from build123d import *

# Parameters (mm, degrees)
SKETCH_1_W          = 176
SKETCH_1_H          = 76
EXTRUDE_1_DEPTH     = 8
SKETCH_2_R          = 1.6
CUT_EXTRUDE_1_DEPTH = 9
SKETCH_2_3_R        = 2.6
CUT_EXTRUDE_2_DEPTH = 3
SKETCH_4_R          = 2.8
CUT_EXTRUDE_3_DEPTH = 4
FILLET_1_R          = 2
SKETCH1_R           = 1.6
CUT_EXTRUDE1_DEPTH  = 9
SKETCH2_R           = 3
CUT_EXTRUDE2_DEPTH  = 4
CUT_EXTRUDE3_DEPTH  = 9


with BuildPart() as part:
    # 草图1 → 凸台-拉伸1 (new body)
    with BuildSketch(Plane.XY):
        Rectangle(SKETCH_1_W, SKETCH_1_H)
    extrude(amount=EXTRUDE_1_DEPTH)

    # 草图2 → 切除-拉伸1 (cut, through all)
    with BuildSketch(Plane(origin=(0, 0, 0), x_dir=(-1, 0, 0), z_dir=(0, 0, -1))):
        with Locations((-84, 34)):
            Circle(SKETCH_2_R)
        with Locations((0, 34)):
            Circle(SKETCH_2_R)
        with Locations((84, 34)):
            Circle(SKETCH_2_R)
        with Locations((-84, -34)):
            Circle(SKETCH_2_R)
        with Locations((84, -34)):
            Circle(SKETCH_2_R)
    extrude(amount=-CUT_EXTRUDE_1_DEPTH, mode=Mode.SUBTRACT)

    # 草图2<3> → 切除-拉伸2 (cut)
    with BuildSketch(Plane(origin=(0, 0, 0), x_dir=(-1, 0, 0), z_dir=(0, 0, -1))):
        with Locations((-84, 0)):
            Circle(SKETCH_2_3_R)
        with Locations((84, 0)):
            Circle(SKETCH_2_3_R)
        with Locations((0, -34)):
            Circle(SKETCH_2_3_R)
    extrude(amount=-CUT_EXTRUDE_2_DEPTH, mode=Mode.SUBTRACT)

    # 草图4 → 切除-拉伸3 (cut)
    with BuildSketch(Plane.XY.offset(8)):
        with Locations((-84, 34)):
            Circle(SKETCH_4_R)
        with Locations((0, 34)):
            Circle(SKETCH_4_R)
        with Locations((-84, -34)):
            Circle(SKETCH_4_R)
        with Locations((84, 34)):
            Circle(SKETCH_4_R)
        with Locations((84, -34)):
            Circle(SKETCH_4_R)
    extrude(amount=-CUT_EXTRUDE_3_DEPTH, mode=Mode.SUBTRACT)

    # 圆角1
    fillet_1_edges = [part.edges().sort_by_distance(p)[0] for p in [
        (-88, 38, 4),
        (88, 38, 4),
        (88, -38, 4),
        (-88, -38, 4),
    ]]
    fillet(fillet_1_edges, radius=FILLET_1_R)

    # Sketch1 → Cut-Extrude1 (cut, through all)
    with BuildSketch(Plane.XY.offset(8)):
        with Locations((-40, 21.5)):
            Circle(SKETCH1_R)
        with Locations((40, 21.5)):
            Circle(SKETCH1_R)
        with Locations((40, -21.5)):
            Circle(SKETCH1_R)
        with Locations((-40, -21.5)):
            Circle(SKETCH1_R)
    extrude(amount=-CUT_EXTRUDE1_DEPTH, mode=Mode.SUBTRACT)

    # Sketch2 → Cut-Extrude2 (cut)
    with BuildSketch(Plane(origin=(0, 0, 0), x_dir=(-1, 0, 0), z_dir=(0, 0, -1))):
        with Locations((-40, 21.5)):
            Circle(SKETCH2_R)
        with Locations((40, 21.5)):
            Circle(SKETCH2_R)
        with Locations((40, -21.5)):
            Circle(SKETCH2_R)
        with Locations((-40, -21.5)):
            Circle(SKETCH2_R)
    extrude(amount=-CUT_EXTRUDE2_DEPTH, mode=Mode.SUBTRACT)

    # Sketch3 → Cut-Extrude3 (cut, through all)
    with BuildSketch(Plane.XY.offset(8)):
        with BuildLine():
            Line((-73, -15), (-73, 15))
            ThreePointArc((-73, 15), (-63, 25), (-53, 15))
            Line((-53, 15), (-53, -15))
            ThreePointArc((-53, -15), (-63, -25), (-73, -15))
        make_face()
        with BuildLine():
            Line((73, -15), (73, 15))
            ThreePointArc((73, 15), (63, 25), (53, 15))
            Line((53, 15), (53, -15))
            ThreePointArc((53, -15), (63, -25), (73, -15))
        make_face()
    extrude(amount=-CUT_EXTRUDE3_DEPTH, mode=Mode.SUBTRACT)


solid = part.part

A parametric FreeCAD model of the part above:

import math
import FreeCAD as App
import Part
import Sketcher
from FreeCAD import Vector


def edges_at(feature, points):
    """Names of the edges that pass closest to the given points."""
    edges = feature.Shape.Edges
    near = lambda p: min(range(len(edges)), key=lambda i: edges[i].distToShape(Part.Vertex(*p))[0])
    return sorted({f"Edge{near(p) + 1}" for p in points})


def add_polygon(sketch, points):
    """Adds a closed chain of lines whose ends are joined by coincident constraints."""
    first, n = sketch.GeometryCount, len(points)
    for a, b in zip(points, points[1:] + points[:1]):
        sketch.addGeometry(Part.LineSegment(App.Vector(*a, 0), App.Vector(*b, 0)), False)
    for i in range(n):
        sketch.addConstraint(Sketcher.Constraint("Coincident", first + i, 2, first + (i + 1) % n, 1))

doc = App.newDocument("Part")
body = doc.addObject("PartDesign::Body", "Body")

# Sketch on XY plane
sketch1 = body.newObject("Sketcher::SketchObject", "Sketch")
sketch1.AttachmentSupport = (doc.getObject("XY_Plane"), [""])
sketch1.MapMode = "FlatFace"
add_polygon(sketch1, [(-88, 38), (-88, -38), (88, -38), (88, 38)])  # lines 0-3
sketch1.addConstraint(Sketcher.Constraint("Vertical", 0))
sketch1.addConstraint(Sketcher.Constraint("Horizontal", 1))
sketch1.addConstraint(Sketcher.Constraint("Vertical", 2))
sketch1.addConstraint(Sketcher.Constraint("Horizontal", 3))
sketch1.addConstraint(Sketcher.Constraint("Symmetric", 0, 2, 2, 2, -1, 1))
sketch1.addConstraint(Sketcher.Constraint("DistanceX", 1, 1, 1, 2, 176.0))
sketch1.addConstraint(Sketcher.Constraint("DistanceY", 0, 2, 0, 1, 76.0))
pad1 = body.newObject("PartDesign::Pad", "Pad")
pad1.Profile = sketch1
pad1.Length = 8

# Sketch on XY plane
sketch2 = body.newObject("Sketcher::SketchObject", "Sketch001")
sketch2.AttachmentSupport = (doc.getObject("XY_Plane"), [""])
sketch2.MapMode = "FlatFace"
sketch2.addGeometry(Part.Circle(Vector(84, 34, 0), Vector(0, 0, 1), 1.6), False)
sketch2.addGeometry(Part.Circle(Vector(0, 34, 0), Vector(0, 0, 1), 1.6), False)
sketch2.addGeometry(Part.Circle(Vector(-84, 34, 0), Vector(0, 0, 1), 1.6), False)
sketch2.addGeometry(Part.Circle(Vector(84, -34, 0), Vector(0, 0, 1), 1.6), False)
sketch2.addGeometry(Part.Circle(Vector(-84, -34, 0), Vector(0, 0, 1), 1.6), False)
sketch2.addConstraint(Sketcher.Constraint("Equal", 0, 1))
sketch2.addConstraint(Sketcher.Constraint("Equal", 1, 2))
sketch2.addConstraint(Sketcher.Constraint("Equal", 2, 3))
sketch2.addConstraint(Sketcher.Constraint("Equal", 3, 4))
sketch2.addConstraint(Sketcher.Constraint("Symmetric", 2, 3, 3, 3, -1, 1))
sketch2.addConstraint(Sketcher.Constraint("Symmetric", 0, 3, 4, 3, -1, 1))
sketch2.addConstraint(Sketcher.Constraint("Symmetric", 0, 3, 2, 3, -2))
sketch2.addConstraint(Sketcher.Constraint("PointOnObject", 1, 3, -2))
sketch2.addConstraint(Sketcher.Constraint("Horizontal", 0, 3, 1, 3))
sketch2.addConstraint(Sketcher.Constraint("Diameter", 0, 3.2))
sketch2.addConstraint(Sketcher.Constraint("DistanceX", -1, 1, 0, 3, 84.0))
sketch2.addConstraint(Sketcher.Constraint("DistanceY", -1, 1, 0, 3, 34.0))
pocket1 = body.newObject("PartDesign::Pocket", "Pocket")
pocket1.Profile = sketch2
pocket1.Type = "ThroughAll"
pocket1.Reversed = True

# Sketch on XY plane
sketch3 = body.newObject("Sketcher::SketchObject", "Sketch002")
sketch3.AttachmentSupport = (doc.getObject("XY_Plane"), [""])
sketch3.MapMode = "FlatFace"
sketch3.addGeometry(Part.Circle(Vector(84, 0, 0), Vector(0, 0, 1), 2.6), False)
sketch3.addGeometry(Part.Circle(Vector(-84, 0, 0), Vector(0, 0, 1), 2.6), False)
sketch3.addGeometry(Part.Circle(Vector(0, -34, 0), Vector(0, 0, 1), 2.6), False)
sketch3.addConstraint(Sketcher.Constraint("Equal", 0, 1))
sketch3.addConstraint(Sketcher.Constraint("Equal", 1, 2))
sketch3.addConstraint(Sketcher.Constraint("Symmetric", 0, 3, 1, 3, -1, 1))
sketch3.addConstraint(Sketcher.Constraint("PointOnObject", 0, 3, -1))
sketch3.addConstraint(Sketcher.Constraint("PointOnObject", 2, 3, -2))
sketch3.addConstraint(Sketcher.Constraint("Diameter", 0, 5.2))
sketch3.addConstraint(Sketcher.Constraint("DistanceX", -1, 1, 0, 3, 84.0))
sketch3.addConstraint(Sketcher.Constraint("DistanceY", 2, 3, -1, 1, 34.0))
pocket2 = body.newObject("PartDesign::Pocket", "Pocket001")
pocket2.Profile = sketch3
pocket2.Length = 3
pocket2.Reversed = True

# Sketch on XY plane
sketch4 = body.newObject("Sketcher::SketchObject", "Sketch003")
sketch4.AttachmentSupport = (doc.getObject("XY_Plane"), [""])
sketch4.MapMode = "FlatFace"
sketch4.AttachmentOffset = App.Placement(Vector(0, 0, 8), App.Rotation())
sketch4.addGeometry(Part.Circle(Vector(-84, 34, 0), Vector(0, 0, 1), 2.8), False)
sketch4.addGeometry(Part.Circle(Vector(0, 34, 0), Vector(0, 0, 1), 2.8), False)
sketch4.addGeometry(Part.Circle(Vector(-84, -34, 0), Vector(0, 0, 1), 2.8), False)
sketch4.addGeometry(Part.Circle(Vector(84, 34, 0), Vector(0, 0, 1), 2.8), False)
sketch4.addGeometry(Part.Circle(Vector(84, -34, 0), Vector(0, 0, 1), 2.8), False)
sketch4.addConstraint(Sketcher.Constraint("Equal", 0, 1))
sketch4.addConstraint(Sketcher.Constraint("Equal", 1, 2))
sketch4.addConstraint(Sketcher.Constraint("Equal", 2, 3))
sketch4.addConstraint(Sketcher.Constraint("Equal", 3, 4))
sketch4.addConstraint(Sketcher.Constraint("Symmetric", 2, 3, 3, 3, -1, 1))
sketch4.addConstraint(Sketcher.Constraint("Symmetric", 0, 3, 4, 3, -1, 1))
sketch4.addConstraint(Sketcher.Constraint("Symmetric", 0, 3, 3, 3, -2))
sketch4.addConstraint(Sketcher.Constraint("PointOnObject", 1, 3, -2))
sketch4.addConstraint(Sketcher.Constraint("Horizontal", 0, 3, 1, 3))
sketch4.addConstraint(Sketcher.Constraint("Diameter", 0, 5.6))
sketch4.addConstraint(Sketcher.Constraint("DistanceX", 0, 3, -1, 1, 84.0))
sketch4.addConstraint(Sketcher.Constraint("DistanceY", -1, 1, 0, 3, 34.0))
pocket3 = body.newObject("PartDesign::Pocket", "Pocket002")
pocket3.Profile = sketch4
pocket3.Length = 4
doc.recompute()

fillet = body.newObject("PartDesign::Fillet", "Fillet")
fillet.Base = (pocket3, edges_at(pocket3, [
    (-88, 38, 4),
    (88, 38, 4),
    (88, -38, 4),
    (-88, -38, 4),
]))
fillet.Radius = 2

# Sketch on XY plane
sketch5 = body.newObject("Sketcher::SketchObject", "Sketch004")
sketch5.AttachmentSupport = (doc.getObject("XY_Plane"), [""])
sketch5.MapMode = "FlatFace"
sketch5.AttachmentOffset = App.Placement(Vector(0, 0, 8), App.Rotation())
sketch5.addGeometry(Part.Circle(Vector(-40, 21.5, 0), Vector(0, 0, 1), 1.6), False)
sketch5.addGeometry(Part.Circle(Vector(40, 21.5, 0), Vector(0, 0, 1), 1.6), False)
sketch5.addGeometry(Part.Circle(Vector(40, -21.5, 0), Vector(0, 0, 1), 1.6), False)
sketch5.addGeometry(Part.Circle(Vector(-40, -21.5, 0), Vector(0, 0, 1), 1.6), False)
sketch5.addConstraint(Sketcher.Constraint("Equal", 0, 1))
sketch5.addConstraint(Sketcher.Constraint("Equal", 1, 2))
sketch5.addConstraint(Sketcher.Constraint("Equal", 2, 3))
sketch5.addConstraint(Sketcher.Constraint("Symmetric", 0, 3, 2, 3, -1, 1))
sketch5.addConstraint(Sketcher.Constraint("Symmetric", 1, 3, 3, 3, -1, 1))
sketch5.addConstraint(Sketcher.Constraint("Symmetric", 0, 3, 1, 3, -2))
sketch5.addConstraint(Sketcher.Constraint("Diameter", 0, 3.2))
sketch5.addConstraint(Sketcher.Constraint("DistanceX", 0, 3, -1, 1, 40.0))
sketch5.addConstraint(Sketcher.Constraint("DistanceY", 2, 3, 1, 3, 43.0))
pocket4 = body.newObject("PartDesign::Pocket", "Pocket003")
pocket4.Profile = sketch5
pocket4.Type = "ThroughAll"

# Sketch on XY plane
sketch6 = body.newObject("Sketcher::SketchObject", "Sketch005")
sketch6.AttachmentSupport = (doc.getObject("XY_Plane"), [""])
sketch6.MapMode = "FlatFace"
sketch6.addGeometry(Part.Circle(Vector(40, 21.5, 0), Vector(0, 0, 1), 3), False)
sketch6.addGeometry(Part.Circle(Vector(-40, 21.5, 0), Vector(0, 0, 1), 3), False)
sketch6.addGeometry(Part.Circle(Vector(-40, -21.5, 0), Vector(0, 0, 1), 3), False)
sketch6.addGeometry(Part.Circle(Vector(40, -21.5, 0), Vector(0, 0, 1), 3), False)
sketch6.addConstraint(Sketcher.Constraint("Equal", 0, 1))
sketch6.addConstraint(Sketcher.Constraint("Equal", 1, 2))
sketch6.addConstraint(Sketcher.Constraint("Equal", 2, 3))
sketch6.addConstraint(Sketcher.Constraint("Symmetric", 0, 3, 2, 3, -1, 1))
sketch6.addConstraint(Sketcher.Constraint("Symmetric", 1, 3, 3, 3, -1, 1))
sketch6.addConstraint(Sketcher.Constraint("Symmetric", 0, 3, 1, 3, -2))
sketch6.addConstraint(Sketcher.Constraint("Diameter", 0, 6.0))
sketch6.addConstraint(Sketcher.Constraint("DistanceX", -1, 1, 0, 3, 40.0))
sketch6.addConstraint(Sketcher.Constraint("DistanceY", 2, 3, 1, 3, 43.0))
pocket5 = body.newObject("PartDesign::Pocket", "Pocket004")
pocket5.Profile = sketch6
pocket5.Length = 4
pocket5.Reversed = True

# Sketch on XY plane
sketch7 = body.newObject("Sketcher::SketchObject", "Sketch006")
sketch7.AttachmentSupport = (doc.getObject("XY_Plane"), [""])
sketch7.MapMode = "FlatFace"
sketch7.AttachmentOffset = App.Placement(Vector(0, 0, 8), App.Rotation())
sketch7.addGeometry(Part.LineSegment(Vector(-73, 15, 0), Vector(-73, -15, 0)), False)
sketch7.addGeometry(Part.ArcOfCircle(Part.Circle(Vector(-63, -15, 0), Vector(0, 0, 1), 10), math.radians(180), math.radians(360)), False)
sketch7.addGeometry(Part.LineSegment(Vector(-53, -15, 0), Vector(-53, 15, 0)), False)
sketch7.addGeometry(Part.ArcOfCircle(Part.Circle(Vector(-63, 15, 0), Vector(0, 0, 1), 10), math.radians(0), math.radians(180)), False)
sketch7.addGeometry(Part.LineSegment(Vector(73, -15, 0), Vector(73, 15, 0)), False)
sketch7.addGeometry(Part.ArcOfCircle(Part.Circle(Vector(63, 15, 0), Vector(0, 0, 1), 10), math.radians(0), math.radians(180)), False)
sketch7.addGeometry(Part.LineSegment(Vector(53, 15, 0), Vector(53, -15, 0)), False)
sketch7.addGeometry(Part.ArcOfCircle(Part.Circle(Vector(63, -15, 0), Vector(0, 0, 1), 10), math.radians(180), math.radians(360)), False)
sketch7.addConstraint(Sketcher.Constraint("Tangent", 0, 2, 1, 1))
sketch7.addConstraint(Sketcher.Constraint("Tangent", 1, 2, 2, 1))
sketch7.addConstraint(Sketcher.Constraint("Tangent", 2, 2, 3, 1))
sketch7.addConstraint(Sketcher.Constraint("Tangent", 3, 2, 0, 1))
sketch7.addConstraint(Sketcher.Constraint("Tangent", 4, 2, 5, 1))
sketch7.addConstraint(Sketcher.Constraint("Tangent", 5, 2, 6, 1))
sketch7.addConstraint(Sketcher.Constraint("Tangent", 6, 2, 7, 1))
sketch7.addConstraint(Sketcher.Constraint("Tangent", 7, 2, 4, 1))
sketch7.addConstraint(Sketcher.Constraint("Vertical", 0))
sketch7.addConstraint(Sketcher.Constraint("Vertical", 2))
sketch7.addConstraint(Sketcher.Constraint("Vertical", 4))
sketch7.addConstraint(Sketcher.Constraint("Vertical", 6))
sketch7.addConstraint(Sketcher.Constraint("Equal", 3, 5))
sketch7.addConstraint(Sketcher.Constraint("Symmetric", 1, 3, 5, 3, -1, 1))
sketch7.addConstraint(Sketcher.Constraint("Horizontal", 3, 3, 5, 3))
sketch7.addConstraint(Sketcher.Constraint("Horizontal", 1, 3, 7, 3))
sketch7.addConstraint(Sketcher.Constraint("Radius", 1, 10.0))
sketch7.addConstraint(Sketcher.Constraint("DistanceY", 0, 2, 0, 1, 30.0))
sketch7.addConstraint(Sketcher.Constraint("DistanceX", 1, 3, -1, 1, 63.0))
pocket6 = body.newObject("PartDesign::Pocket", "Pocket005")
pocket6.Profile = sketch7
pocket6.Type = "ThroughAll"

doc.recompute()
